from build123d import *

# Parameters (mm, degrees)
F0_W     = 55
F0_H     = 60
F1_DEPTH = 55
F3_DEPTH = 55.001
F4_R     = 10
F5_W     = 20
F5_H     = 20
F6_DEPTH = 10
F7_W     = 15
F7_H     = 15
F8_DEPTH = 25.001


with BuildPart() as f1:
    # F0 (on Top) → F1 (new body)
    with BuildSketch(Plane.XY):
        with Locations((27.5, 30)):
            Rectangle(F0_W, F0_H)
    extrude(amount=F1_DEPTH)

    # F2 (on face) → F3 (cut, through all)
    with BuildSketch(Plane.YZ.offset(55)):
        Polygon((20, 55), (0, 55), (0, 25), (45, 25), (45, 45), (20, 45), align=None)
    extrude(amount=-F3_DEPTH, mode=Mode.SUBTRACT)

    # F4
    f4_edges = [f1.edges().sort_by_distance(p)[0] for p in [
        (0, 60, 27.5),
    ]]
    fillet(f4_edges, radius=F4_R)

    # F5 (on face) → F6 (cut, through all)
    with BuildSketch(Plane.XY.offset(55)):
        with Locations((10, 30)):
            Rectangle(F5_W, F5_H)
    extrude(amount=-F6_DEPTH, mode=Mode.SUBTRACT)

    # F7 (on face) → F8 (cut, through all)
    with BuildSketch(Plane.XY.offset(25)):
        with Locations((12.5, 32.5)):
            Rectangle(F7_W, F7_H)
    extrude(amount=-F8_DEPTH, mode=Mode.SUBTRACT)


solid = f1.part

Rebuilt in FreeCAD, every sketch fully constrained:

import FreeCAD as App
import Part
import Sketcher

V = App.Vector
Q = App.Units.Quantity


def edges_at(feature, points):
    """Names of the edges that pass closest to the given points."""
    edges = feature.Shape.Edges
    near = lambda p: min(range(len(edges)), key=lambda i: edges[i].distToShape(Part.Vertex(*p))[0])
    return sorted({f"Edge{near(p) + 1}" for p in points})

doc = App.newDocument("Part")
params = doc.addObject("Spreadsheet::Sheet", "Params")
for row, (alias, value) in enumerate([
    ("sketch1_width", "55 mm"),
    ("sketch1_height", "60 mm"),
    ("pad1_length", "55 mm"),
    ("sketch2_width", "20 mm"),
    ("sketch2_width2", "45 mm"),
    ("sketch2_height", "30 mm"),
    ("fillet_radius", "10 mm"),
    ("sketch3_width", "20 mm"),
    ("pocket2_length", "10 mm"),
    ("sketch4_width", "15 mm"),
], start=1):
    params.set(f"A{row}", alias)
    params.set(f"B{row}", "=" + value)
    params.setAlias(f"B{row}", alias)

body = doc.addObject("PartDesign::Body", "Body")

sketch1 = doc.addObject("Sketcher::SketchObject", "Sketch")
body.addObject(sketch1)
sketch1.AttachmentSupport = (doc.XY_Plane, [""])
sketch1.MapMode = "FlatFace"
sketch1.addGeometry([
    Part.LineSegment(V(0, 60, 0), V(0, 0, 0)),
    Part.LineSegment(V(0, 0, 0), V(55, 0, 0)),
    Part.LineSegment(V(55, 0, 0), V(55, 60, 0)),
    Part.LineSegment(V(55, 60, 0), V(0, 60, 0)),
], False)
sketch1.addConstraint([
    Sketcher.Constraint("Coincident", 0, 2, 1, 1),
    Sketcher.Constraint("Coincident", 1, 2, 2, 1),
    Sketcher.Constraint("Coincident", 2, 2, 3, 1),
    Sketcher.Constraint("Coincident", 3, 2, 0, 1),
    Sketcher.Constraint("Vertical", 0),
    Sketcher.Constraint("Horizontal", 1),
    Sketcher.Constraint("Vertical", 2),
    Sketcher.Constraint("Horizontal", 3),
    Sketcher.Constraint("Coincident", 0, 2, -1, 1),
    Sketcher.Constraint("DistanceX", 1, 1, 1, 2, Q("55 mm")),
    Sketcher.Constraint("DistanceY", 0, 2, 0, 1, Q("60 mm")),
])
sketch1.setExpression("Constraints[9]", "Params.sketch1_width")
sketch1.setExpression("Constraints[10]", "Params.sketch1_height")
pad1 = doc.addObject("PartDesign::Pad", "Pad")
body.addObject(pad1)
pad1.Profile = sketch1
pad1.setExpression("Length", "Params.pad1_length")

sketch2 = doc.addObject("Sketcher::SketchObject", "Sketch001")
body.addObject(sketch2)
sketch2.AttachmentSupport = (doc.YZ_Plane, [""])
sketch2.MapMode = "FlatFace"
sketch2.AttachmentOffset = App.Placement(V(0, 0, 55), App.Rotation())
sketch2.addGeometry([
    Part.LineSegment(V(20, 55, 0), V(0, 55, 0)),
    Part.LineSegment(V(0, 55, 0), V(0, 25, 0)),
    Part.LineSegment(V(0, 25, 0), V(45, 25, 0)),
    Part.LineSegment(V(45, 25, 0), V(45, 45, 0)),
    Part.LineSegment(V(45, 45, 0), V(20, 45, 0)),
    Part.LineSegment(V(20, 45, 0), V(20, 55, 0)),
], False)
sketch2.addConstraint([
    Sketcher.Constraint("Coincident", 0, 2, 1, 1),
    Sketcher.Constraint("Coincident", 1, 2, 2, 1),
    Sketcher.Constraint("Coincident", 2, 2, 3, 1),
    Sketcher.Constraint("Coincident", 3, 2, 4, 1),
    Sketcher.Constraint("Coincident", 4, 2, 5, 1),
    Sketcher.Constraint("Coincident", 5, 2, 0, 1),
    Sketcher.Constraint("Horizontal", 0),
    Sketcher.Constraint("Vertical", 1),
    Sketcher.Constraint("Horizontal", 2),
    Sketcher.Constraint("Vertical", 3),
    Sketcher.Constraint("Horizontal", 4),
    Sketcher.Constraint("Vertical", 5),
    Sketcher.Constraint("PointOnObject", 0, 2, -2),
    Sketcher.Constraint("Equal", 0, 3),
    Sketcher.Constraint("DistanceX", 0, 2, 0, 1, Q("20 mm")),
    Sketcher.Constraint("DistanceX", 2, 1, 2, 2, Q("45 mm")),
    Sketcher.Constraint("DistanceY", 1, 2, 1, 1, Q("30 mm")),
    Sketcher.Constraint("DistanceY", -1, 1, 0, 2, Q("55 mm")),
])
sketch2.setExpression("Constraints[14]", "Params.sketch2_width")
sketch2.setExpression("Constraints[15]", "Params.sketch2_width2")
sketch2.setExpression("Constraints[16]", "Params.sketch2_height")
pocket1 = doc.addObject("PartDesign::Pocket", "Pocket")
body.addObject(pocket1)
pocket1.Profile = sketch2
pocket1.Type = "ThroughAll"
doc.recompute()

fillet = doc.addObject("PartDesign::Fillet", "Fillet")
body.addObject(fillet)
fillet.Base = (pocket1, edges_at(pocket1, [(0, 60, 27.5)]))
fillet.setExpression("Radius", "Params.fillet_radius")

sketch3 = doc.addObject("Sketcher::SketchObject", "Sketch002")
body.addObject(sketch3)
sketch3.AttachmentSupport = (doc.XY_Plane, [""])
sketch3.MapMode = "FlatFace"
sketch3.AttachmentOffset = App.Placement(V(0, 0, 55), App.Rotation())
sketch3.addGeometry([
    Part.LineSegment(V(0, 40, 0), V(0, 20, 0)),
    Part.LineSegment(V(0, 20, 0), V(20, 20, 0)),
    Part.LineSegment(V(20, 20, 0), V(20, 40, 0)),
    Part.LineSegment(V(20, 40, 0), V(0, 40, 0)),
], False)
sketch3.addConstraint([
    Sketcher.Constraint("Coincident", 0, 2, 1, 1),
    Sketcher.Constraint("Coincident", 1, 2, 2, 1),
    Sketcher.Constraint("Coincident", 2, 2, 3, 1),
    Sketcher.Constraint("Coincident", 3, 2, 0, 1),
    Sketcher.Constraint("Vertical", 0),
    Sketcher.Constraint("Horizontal", 1),
    Sketcher.Constraint("Vertical", 2),
    Sketcher.Constraint("Horizontal", 3),
    Sketcher.Constraint("PointOnObject", 0, 2, -2),
    Sketcher.Constraint("Equal", 3, 0),
    Sketcher.Constraint("DistanceX", 1, 1, 1, 2, Q("20 mm")),
    Sketcher.Constraint("DistanceY", -1, 1, 0, 2, Q("20 mm")),
])
sketch3.setExpression("Constraints[10]", "Params.sketch3_width")
pocket2 = doc.addObject("PartDesign::Pocket", "Pocket001")
body.addObject(pocket2)
pocket2.Profile = sketch3
pocket2.setExpression("Length", "Params.pocket2_length")

sketch4 = doc.addObject("Sketcher::SketchObject", "Sketch003")
body.addObject(sketch4)
sketch4.AttachmentSupport = (doc.XY_Plane, [""])
sketch4.MapMode = "FlatFace"
sketch4.AttachmentOffset = App.Placement(V(0, 0, 25), App.Rotation())
sketch4.addGeometry([
    Part.LineSegment(V(5, 40, 0), V(5, 25, 0)),
    Part.LineSegment(V(5, 25, 0), V(20, 25, 0)),
    Part.LineSegment(V(20, 25, 0), V(20, 40, 0)),
    Part.LineSegment(V(20, 40, 0), V(5, 40, 0)),
], False)
sketch4.addConstraint([
    Sketcher.Constraint("Coincident", 0, 2, 1, 1),
    Sketcher.Constraint("Coincident", 1, 2, 2, 1),
    Sketcher.Constraint("Coincident", 2, 2, 3, 1),
    Sketcher.Constraint("Coincident", 3, 2, 0, 1),
    Sketcher.Constraint("Vertical", 0),
    Sketcher.Constraint("Horizontal", 1),
    Sketcher.Constraint("Vertical", 2),
    Sketcher.Constraint("Horizontal", 3),
    Sketcher.Constraint("Equal", 3, 0),
    Sketcher.Constraint("DistanceX", 1, 1, 1, 2, Q("15 mm")),
    Sketcher.Constraint("DistanceX", -1, 1, 0, 2, Q("5 mm")),
    Sketcher.Constraint("DistanceY", -1, 1, 0, 2, Q("25 mm")),
])
sketch4.setExpression("Constraints[9]", "Params.sketch4_width")
pocket3 = doc.addObject("PartDesign::Pocket", "Pocket002")
body.addObject(pocket3)
pocket3.Profile = sketch4
pocket3.Type = "ThroughAll"

doc.recompute()
